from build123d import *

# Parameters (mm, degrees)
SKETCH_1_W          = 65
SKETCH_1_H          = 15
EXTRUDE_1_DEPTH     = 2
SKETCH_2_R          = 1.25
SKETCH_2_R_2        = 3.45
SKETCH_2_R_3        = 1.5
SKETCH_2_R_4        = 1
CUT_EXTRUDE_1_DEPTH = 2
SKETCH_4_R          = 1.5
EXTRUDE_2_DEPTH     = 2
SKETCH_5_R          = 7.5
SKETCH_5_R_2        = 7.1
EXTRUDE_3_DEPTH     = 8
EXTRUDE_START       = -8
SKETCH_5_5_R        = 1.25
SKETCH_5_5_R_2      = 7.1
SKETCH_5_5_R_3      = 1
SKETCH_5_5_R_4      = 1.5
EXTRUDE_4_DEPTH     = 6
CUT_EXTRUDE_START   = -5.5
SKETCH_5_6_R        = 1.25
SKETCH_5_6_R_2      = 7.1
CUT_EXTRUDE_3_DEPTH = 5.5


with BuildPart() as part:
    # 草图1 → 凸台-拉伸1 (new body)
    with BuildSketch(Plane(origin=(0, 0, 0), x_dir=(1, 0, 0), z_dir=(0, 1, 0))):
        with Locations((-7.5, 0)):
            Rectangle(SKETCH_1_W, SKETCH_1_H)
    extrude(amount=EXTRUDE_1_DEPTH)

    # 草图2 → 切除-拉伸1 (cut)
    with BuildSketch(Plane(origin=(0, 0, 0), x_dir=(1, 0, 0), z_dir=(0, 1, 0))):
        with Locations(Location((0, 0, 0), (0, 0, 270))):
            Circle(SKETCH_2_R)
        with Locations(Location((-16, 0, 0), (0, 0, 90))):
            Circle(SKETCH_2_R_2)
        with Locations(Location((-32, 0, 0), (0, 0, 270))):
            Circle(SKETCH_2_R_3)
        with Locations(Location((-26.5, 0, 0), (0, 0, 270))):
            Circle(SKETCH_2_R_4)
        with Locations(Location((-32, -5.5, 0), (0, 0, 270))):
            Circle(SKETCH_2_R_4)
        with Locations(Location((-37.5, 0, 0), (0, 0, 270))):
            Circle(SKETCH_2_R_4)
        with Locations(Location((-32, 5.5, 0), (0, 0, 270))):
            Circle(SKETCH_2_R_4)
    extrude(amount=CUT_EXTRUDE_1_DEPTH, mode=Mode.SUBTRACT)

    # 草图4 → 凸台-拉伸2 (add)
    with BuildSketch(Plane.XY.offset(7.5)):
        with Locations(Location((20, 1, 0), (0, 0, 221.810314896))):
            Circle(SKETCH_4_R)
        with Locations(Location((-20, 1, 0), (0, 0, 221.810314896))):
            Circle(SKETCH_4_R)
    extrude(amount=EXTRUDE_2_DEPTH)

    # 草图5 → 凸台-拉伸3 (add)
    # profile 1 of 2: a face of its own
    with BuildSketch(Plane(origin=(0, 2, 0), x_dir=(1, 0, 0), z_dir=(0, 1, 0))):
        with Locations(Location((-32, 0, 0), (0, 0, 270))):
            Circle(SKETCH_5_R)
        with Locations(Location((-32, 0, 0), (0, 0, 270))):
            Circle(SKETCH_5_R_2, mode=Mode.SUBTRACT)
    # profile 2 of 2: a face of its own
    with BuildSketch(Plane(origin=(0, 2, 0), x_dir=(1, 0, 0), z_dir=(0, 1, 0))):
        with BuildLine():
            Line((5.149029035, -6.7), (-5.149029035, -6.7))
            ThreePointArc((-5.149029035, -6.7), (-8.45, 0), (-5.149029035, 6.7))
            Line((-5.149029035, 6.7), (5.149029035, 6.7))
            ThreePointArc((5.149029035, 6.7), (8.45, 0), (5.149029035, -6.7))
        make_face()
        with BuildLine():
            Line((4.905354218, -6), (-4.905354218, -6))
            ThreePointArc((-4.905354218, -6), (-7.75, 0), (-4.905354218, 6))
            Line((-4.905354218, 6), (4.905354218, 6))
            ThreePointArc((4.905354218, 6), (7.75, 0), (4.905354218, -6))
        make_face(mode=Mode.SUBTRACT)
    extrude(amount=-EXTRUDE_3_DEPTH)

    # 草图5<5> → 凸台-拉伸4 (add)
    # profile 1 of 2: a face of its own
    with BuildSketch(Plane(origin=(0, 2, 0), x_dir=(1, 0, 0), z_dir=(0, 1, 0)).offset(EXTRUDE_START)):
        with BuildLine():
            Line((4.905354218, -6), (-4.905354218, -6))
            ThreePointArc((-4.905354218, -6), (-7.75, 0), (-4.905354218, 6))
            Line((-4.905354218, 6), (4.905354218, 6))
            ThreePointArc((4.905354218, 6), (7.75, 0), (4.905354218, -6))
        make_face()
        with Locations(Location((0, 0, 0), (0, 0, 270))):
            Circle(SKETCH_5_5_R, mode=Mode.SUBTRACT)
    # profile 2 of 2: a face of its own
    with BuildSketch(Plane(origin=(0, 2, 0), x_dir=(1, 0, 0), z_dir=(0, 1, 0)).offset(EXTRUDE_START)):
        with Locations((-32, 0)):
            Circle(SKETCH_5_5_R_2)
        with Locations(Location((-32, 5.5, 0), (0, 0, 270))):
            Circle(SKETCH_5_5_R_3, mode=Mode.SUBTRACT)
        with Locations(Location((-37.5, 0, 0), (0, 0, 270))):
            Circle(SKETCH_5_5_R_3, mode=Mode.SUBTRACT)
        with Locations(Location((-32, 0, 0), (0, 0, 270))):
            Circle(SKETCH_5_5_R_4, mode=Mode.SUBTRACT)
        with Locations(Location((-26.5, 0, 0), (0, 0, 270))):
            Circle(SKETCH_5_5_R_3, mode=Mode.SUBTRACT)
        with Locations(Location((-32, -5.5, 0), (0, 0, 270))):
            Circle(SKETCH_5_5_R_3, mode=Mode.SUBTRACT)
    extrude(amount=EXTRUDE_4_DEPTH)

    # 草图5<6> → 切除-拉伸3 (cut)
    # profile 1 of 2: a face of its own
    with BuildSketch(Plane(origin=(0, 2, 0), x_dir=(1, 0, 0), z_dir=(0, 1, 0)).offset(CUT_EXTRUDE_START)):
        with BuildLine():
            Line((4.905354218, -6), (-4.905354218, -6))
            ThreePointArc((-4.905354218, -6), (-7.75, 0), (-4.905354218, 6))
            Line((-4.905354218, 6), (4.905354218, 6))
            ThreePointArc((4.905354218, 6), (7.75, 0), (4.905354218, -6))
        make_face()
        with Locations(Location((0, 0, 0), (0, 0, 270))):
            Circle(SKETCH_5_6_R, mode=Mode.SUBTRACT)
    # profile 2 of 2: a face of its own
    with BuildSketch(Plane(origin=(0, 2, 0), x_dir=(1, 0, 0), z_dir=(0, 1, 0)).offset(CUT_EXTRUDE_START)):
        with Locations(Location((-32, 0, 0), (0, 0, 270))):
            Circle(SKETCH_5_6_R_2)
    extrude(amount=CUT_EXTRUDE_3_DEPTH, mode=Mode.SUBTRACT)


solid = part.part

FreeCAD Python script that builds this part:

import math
import FreeCAD as App
import Part
import Sketcher
Q = App.Units.Quantity

doc = App.newDocument("Part")
body = doc.addObject("PartDesign::Body", "Body")

# Sketch on XZ plane
sketch1 = body.newObject("Sketcher::SketchObject", "Sketch")
sketch1.AttachmentSupport = (doc.getObject("XZ_Plane"), [""])
sketch1.MapMode = "FlatFace"
sketch1.addGeometry(Part.LineSegment(App.Vector(-40, -7.5, 0), App.Vector(-40, 7.5, 0)), False)
sketch1.addGeometry(Part.LineSegment(App.Vector(-40, 7.5, 0), App.Vector(25, 7.5, 0)), False)
sketch1.addGeometry(Part.LineSegment(App.Vector(25, 7.5, 0), App.Vector(25, -7.5, 0)), False)
sketch1.addGeometry(Part.LineSegment(App.Vector(25, -7.5, 0), App.Vector(-40, -7.5, 0)), False)
sketch1.addConstraint(Sketcher.Constraint("Coincident", 0, 2, 1, 1))
sketch1.addConstraint(Sketcher.Constraint("Coincident", 1, 2, 2, 1))
sketch1.addConstraint(Sketcher.Constraint("Coincident", 2, 2, 3, 1))
sketch1.addConstraint(Sketcher.Constraint("Coincident", 3, 2, 0, 1))
sketch1.addConstraint(Sketcher.Constraint("Vertical", 0))
sketch1.addConstraint(Sketcher.Constraint("Horizontal", 1))
sketch1.addConstraint(Sketcher.Constraint("Vertical", 2))
sketch1.addConstraint(Sketcher.Constraint("Horizontal", 3))
sketch1.addConstraint(Sketcher.Constraint("DistanceX", 1, 1, 1, 2, Q("65 mm")))
sketch1.addConstraint(Sketcher.Constraint("DistanceY", 0, 1, 0, 2, Q("15 mm")))
sketch1.addConstraint(Sketcher.Constraint("DistanceX", 0, 2, -1, 1, Q("40 mm")))
sketch1.addConstraint(Sketcher.Constraint("DistanceY", -1, 1, 0, 2, Q("7.5 mm")))
pad1 = body.newObject("PartDesign::Pad", "Pad")
pad1.Profile = sketch1
pad1.Length = 2
pad1.Reversed = True

# Sketch on XZ plane
sketch2 = body.newObject("Sketcher::SketchObject", "Sketch001")
sketch2.AttachmentSupport = (doc.getObject("XZ_Plane"), [""])
sketch2.MapMode = "FlatFace"
sketch2.addGeometry(Part.Circle(App.Vector(0, 0, 0), App.Vector(0, 0, 1), 1.25), False)
sketch2.addGeometry(Part.Circle(App.Vector(-16, 0, 0), App.Vector(0, 0, 1), 3.45), False)
sketch2.addGeometry(Part.Circle(App.Vector(-32, 0, 0), App.Vector(0, 0, 1), 1.5), False)
sketch2.addGeometry(Part.Circle(App.Vector(-26.5, 0, 0), App.Vector(0, 0, 1), 1), False)
sketch2.addGeometry(Part.Circle(App.Vector(-32, 5.5, 0), App.Vector(0, 0, 1), 1), False)
sketch2.addGeometry(Part.Circle(App.Vector(-37.5, 0, 0), App.Vector(0, 0, 1), 1), False)
sketch2.addGeometry(Part.Circle(App.Vector(-32, -5.5, 0), App.Vector(0, 0, 1), 1), False)
sketch2.addConstraint(Sketcher.Constraint("Coincident", 0, 3, -1, 1))
sketch2.addConstraint(Sketcher.Constraint("Equal", 3, 4))
sketch2.addConstraint(Sketcher.Constraint("Equal", 4, 5))
sketch2.addConstraint(Sketcher.Constraint("Equal", 5, 6))
sketch2.addConstraint(Sketcher.Constraint("Symmetric", 4, 3, 6, 3, -1))
sketch2.addConstraint(Sketcher.Constraint("PointOnObject", 1, 3, -1))
sketch2.addConstraint(Sketcher.Constraint("PointOnObject", 2, 3, -1))
sketch2.addConstraint(Sketcher.Constraint("PointOnObject", 3, 3, -1))
sketch2.addConstraint(Sketcher.Constraint("PointOnObject", 5, 3, -1))
sketch2.addConstraint(Sketcher.Constraint("Vertical", 2, 3, 4, 3))
sketch2.addConstraint(Sketcher.Constraint("Diameter", 2, Q("3 mm")))
sketch2.addConstraint(Sketcher.Constraint("Diameter", 3, Q("2 mm")))
sketch2.addConstraint(Sketcher.Constraint("Diameter", 0, Q("2.5 mm")))
sketch2.addConstraint(Sketcher.Constraint("Diameter", 1, Q("6.9 mm")))
sketch2.addConstraint(Sketcher.Constraint("DistanceX", 1, 3, -1, 1, Q("16 mm")))
sketch2.addConstraint(Sketcher.Constraint("DistanceX", 2, 3, -1, 1, Q("32 mm")))
sketch2.addConstraint(Sketcher.Constraint("DistanceX", 5, 3, 3, 3, Q("11 mm")))
sketch2.addConstraint(Sketcher.Constraint("DistanceY", 6, 3, 4, 3, Q("11 mm")))
sketch2.addConstraint(Sketcher.Constraint("DistanceX", 3, 3, -1, 1, Q("26.5 mm")))
pocket1 = body.newObject("PartDesign::Pocket", "Pocket")
pocket1.Profile = sketch2
pocket1.Length = 2

# Sketch on XY plane
sketch3 = body.newObject("Sketcher::SketchObject", "Sketch002")
sketch3.AttachmentSupport = (doc.getObject("XY_Plane"), [""])
sketch3.MapMode = "FlatFace"
sketch3.AttachmentOffset = App.Placement(App.Vector(0, 0, 7.5), App.Rotation())
sketch3.addGeometry(Part.Circle(App.Vector(20, 1, 0), App.Vector(0, 0, 1), 1.5), False)
sketch3.addGeometry(Part.Circle(App.Vector(-20, 1, 0), App.Vector(0, 0, 1), 1.5), False)
sketch3.addConstraint(Sketcher.Constraint("Equal", 0, 1))
sketch3.addConstraint(Sketcher.Constraint("Symmetric", 0, 3, 1, 3, -2))
sketch3.addConstraint(Sketcher.Constraint("Diameter", 0, Q("3 mm")))
sketch3.addConstraint(Sketcher.Constraint("DistanceX", -1, 1, 0, 3, Q("20 mm")))
sketch3.addConstraint(Sketcher.Constraint("DistanceY", -1, 1, 0, 3, Q("1 mm")))
pad2 = body.newObject("PartDesign::Pad", "Pad001")
pad2.Profile = sketch3
pad2.Length = 2

# Sketch on XZ plane
sketch4 = body.newObject("Sketcher::SketchObject", "Sketch003")
sketch4.AttachmentSupport = (doc.getObject("XZ_Plane"), [""])
sketch4.MapMode = "FlatFace"
sketch4.AttachmentOffset = App.Placement(App.Vector(0, 0, -2), App.Rotation())
sketch4.addGeometry(Part.Circle(App.Vector(-32, 0, 0), App.Vector(0, 0, 1), 7.5), False)
sketch4.addGeometry(Part.Circle(App.Vector(-32, 0, 0), App.Vector(0, 0, 1), 7.1), False)
sketch4.addGeometry(Part.LineSegment(App.Vector(-5.149029, 6.7, 0), App.Vector(5.149029, 6.7, 0)), False)
sketch4.addGeometry(Part.ArcOfCircle(Part.Circle(App.Vector(0, 0, 0), App.Vector(0, 0, 1), 8.45), math.radians(-52.457297), math.radians(52.457297)), False)
sketch4.addGeometry(Part.LineSegment(App.Vector(5.149029, -6.7, 0), App.Vector(-5.149029, -6.7, 0)), False)
sketch4.addGeometry(Part.ArcOfCircle(Part.Circle(App.Vector(0, 0, 0), App.Vector(0, 0, 1), 8.45), math.radians(127.542703), math.radians(232.457297)), False)
sketch4.addGeometry(Part.LineSegment(App.Vector(4.905354, 6, 0), App.Vector(-4.905354, 6, 0)), False)
sketch4.addGeometry(Part.ArcOfCircle(Part.Circle(App.Vector(0, 0, 0), App.Vector(0, 0, 1), 7.75), math.radians(129.268026), math.radians(230.731974)), False)
sketch4.addGeometry(Part.LineSegment(App.Vector(-4.905354, -6, 0), App.Vector(4.905354, -6, 0)), False)
sketch4.addGeometry(Part.ArcOfCircle(Part.Circle(App.Vector(0, 0, 0), App.Vector(0, 0, 1), 7.75), math.radians(-50.731974), math.radians(50.731974)), False)
sketch4.addConstraint(Sketcher.Constraint("Coincident", 2, 2, 3, 2))
sketch4.addConstraint(Sketcher.Constraint("Coincident", 3, 1, 4, 1))
sketch4.addConstraint(Sketcher.Constraint("Coincident", 4, 2, 5, 2))
sketch4.addConstraint(Sketcher.Constraint("Coincident", 5, 1, 2, 1))
sketch4.addConstraint(Sketcher.Constraint("Coincident", 6, 2, 7, 1))
sketch4.addConstraint(Sketcher.Constraint("Coincident", 7, 2, 8, 1))
sketch4.addConstraint(Sketcher.Constraint("Coincident", 8, 2, 9, 1))
sketch4.addConstraint(Sketcher.Constraint("Coincident", 9, 2, 6, 1))
sketch4.addConstraint(Sketcher.Constraint("Horizontal", 2))
sketch4.addConstraint(Sketcher.Constraint("Horizontal", 4))
sketch4.addConstraint(Sketcher.Constraint("Horizontal", 6))
sketch4.addConstraint(Sketcher.Constraint("Horizontal", 8))
sketch4.addConstraint(Sketcher.Constraint("Coincident", 3, 3, -1, 1))
sketch4.addConstraint(Sketcher.Constraint("Coincident", 5, 3, -1, 1))
sketch4.addConstraint(Sketcher.Constraint("Coincident", 7, 3, -1, 1))
sketch4.addConstraint(Sketcher.Constraint("Coincident", 9, 3, -1, 1))
sketch4.addConstraint(Sketcher.Constraint("Coincident", 1, 3, 0, 3))
sketch4.addConstraint(Sketcher.Constraint("Equal", 3, 5))
sketch4.addConstraint(Sketcher.Constraint("Equal", 7, 9))
sketch4.addConstraint(Sketcher.Constraint("PointOnObject", 0, 3, -1))
sketch4.addConstraint(Sketcher.Constraint("Vertical", 2, 2, 3, 1))
sketch4.addConstraint(Sketcher.Constraint("Vertical", 6, 2, 7, 2))
sketch4.addConstraint(Sketcher.Constraint("Diameter", 0, Q("15 mm")))
sketch4.addConstraint(Sketcher.Constraint("Diameter", 1, Q("14.2 mm")))
sketch4.addConstraint(Sketcher.Constraint("Radius", 3, Q("8.45 mm")))
sketch4.addConstraint(Sketcher.Constraint("Radius", 7, Q("7.75 mm")))
sketch4.addConstraint(Sketcher.Constraint("DistanceX", 0, 3, -1, 1, Q("32 mm")))
sketch4.addConstraint(Sketcher.Constraint("DistanceY", -1, 1, 6, 2, Q("6 mm")))
sketch4.addConstraint(Sketcher.Constraint("DistanceY", -1, 1, 2, 2, Q("6.7 mm")))
pad3 = body.newObject("PartDesign::Pad", "Pad002")
pad3.Profile = sketch4
pad3.Length = 8

# Sketch on XZ plane
sketch5 = body.newObject("Sketcher::SketchObject", "Sketch004")
sketch5.AttachmentSupport = (doc.getObject("XZ_Plane"), [""])
sketch5.MapMode = "FlatFace"
sketch5.AttachmentOffset = App.Placement(App.Vector(0, 0, 6), App.Rotation())
sketch5.addGeometry(Part.LineSegment(App.Vector(-4.905354, 6, 0), App.Vector(4.905354, 6, 0)), False)
sketch5.addGeometry(Part.ArcOfCircle(Part.Circle(App.Vector(0, 0, 0), App.Vector(0, 0, 1), 7.75), math.radians(-50.731974), math.radians(50.731974)), False)
sketch5.addGeometry(Part.LineSegment(App.Vector(4.905354, -6, 0), App.Vector(-4.905354, -6, 0)), False)
sketch5.addGeometry(Part.ArcOfCircle(Part.Circle(App.Vector(0, 0, 0), App.Vector(0, 0, 1), 7.75), math.radians(129.268026), math.radians(230.731974)), False)
sketch5.addGeometry(Part.Circle(App.Vector(0, 0, 0), App.Vector(0, 0, 1), 1.25), False)
sketch5.addGeometry(Part.Circle(App.Vector(-32, 0, 0), App.Vector(0, 0, 1), 7.1), False)
sketch5.addGeometry(Part.Circle(App.Vector(-32, 5.5, 0), App.Vector(0, 0, 1), 1), False)
sketch5.addGeometry(Part.Circle(App.Vector(-37.5, 0, 0), App.Vector(0, 0, 1), 1), False)
sketch5.addGeometry(Part.Circle(App.Vector(-32, 0, 0), App.Vector(0, 0, 1), 1.5), False)
sketch5.addGeometry(Part.Circle(App.Vector(-26.5, 0, 0), App.Vector(0, 0, 1), 1), False)
sketch5.addGeometry(Part.Circle(App.Vector(-32, -5.5, 0), App.Vector(0, 0, 1), 1), False)
sketch5.addConstraint(Sketcher.Constraint("Coincident", 0, 2, 1, 2))
sketch5.addConstraint(Sketcher.Constraint("Coincident", 1, 1, 2, 1))
sketch5.addConstraint(Sketcher.Constraint("Coincident", 2, 2, 3, 2))
sketch5.addConstraint(Sketcher.Constraint("Coincident", 3, 1, 0, 1))
sketch5.addConstraint(Sketcher.Constraint("Horizontal", 0))
sketch5.addConstraint(Sketcher.Constraint("Horizontal", 2))
sketch5.addConstraint(Sketcher.Constraint("Coincident", 1, 3, -1, 1))
sketch5.addConstraint(Sketcher.Constraint("Coincident", 3, 3, -1, 1))
sketch5.addConstraint(Sketcher.Constraint("Coincident", 4, 3, -1, 1))
sketch5.addConstraint(Sketcher.Constraint("Coincident", 8, 3, 5, 3))
sketch5.addConstraint(Sketcher.Constraint("Equal", 1, 3))
sketch5.addConstraint(Sketcher.Constraint("Equal", 6, 7))
sketch5.addConstraint(Sketcher.Constraint("Equal", 7, 9))
sketch5.addConstraint(Sketcher.Constraint("Equal", 9, 10))
sketch5.addConstraint(Sketcher.Constraint("Symmetric", 6, 3, 10, 3, -1))
sketch5.addConstraint(Sketcher.Constraint("PointOnObject", 5, 3, -1))
sketch5.addConstraint(Sketcher.Constraint("PointOnObject", 7, 3, -1))
sketch5.addConstraint(Sketcher.Constraint("PointOnObject", 9, 3, -1))
sketch5.addConstraint(Sketcher.Constraint("Vertical", 5, 3, 6, 3))
sketch5.addConstraint(Sketcher.Constraint("Vertical", 0, 2, 1, 1))
sketch5.addConstraint(Sketcher.Constraint("Diameter", 6, Q("2 mm")))
sketch5.addConstraint(Sketcher.Constraint("Diameter", 8, Q("3 mm")))
sketch5.addConstraint(Sketcher.Constraint("Diameter", 4, Q("2.5 mm")))
sketch5.addConstraint(Sketcher.Constraint("Diameter", 5, Q("14.2 mm")))
sketch5.addConstraint(Sketcher.Constraint("Radius", 1, Q("7.75 mm")))
sketch5.addConstraint(Sketcher.Constraint("DistanceX", 5, 3, -1, 1, Q("32 mm")))
sketch5.addConstraint(Sketcher.Constraint("DistanceY", -1, 1, 0, 2, Q("6 mm")))
sketch5.addConstraint(Sketcher.Constraint("DistanceX", 7, 3, 9, 3, Q("11 mm")))
sketch5.addConstraint(Sketcher.Constraint("DistanceY", 10, 3, 6, 3, Q("11 mm")))
sketch5.addConstraint(Sketcher.Constraint("DistanceX", 7, 3, -1, 1, Q("37.5 mm")))
pad4 = body.newObject("PartDesign::Pad", "Pad003")
pad4.Profile = sketch5
pad4.Length = 6
pad4.Reversed = True

# Sketch on XZ plane
sketch6 = body.newObject("Sketcher::SketchObject", "Sketch005")
sketch6.AttachmentSupport = (doc.getObject("XZ_Plane"), [""])
sketch6.MapMode = "FlatFace"
sketch6.AttachmentOffset = App.Placement(App.Vector(0, 0, 3.5), App.Rotation())
sketch6.addGeometry(Part.LineSegment(App.Vector(-4.905354, 6, 0), App.Vector(4.905354, 6, 0)), False)
sketch6.addGeometry(Part.ArcOfCircle(Part.Circle(App.Vector(0, 0, 0), App.Vector(0, 0, 1), 7.75), math.radians(-50.731974), math.radians(50.731974)), False)
sketch6.addGeometry(Part.LineSegment(App.Vector(4.905354, -6, 0), App.Vector(-4.905354, -6, 0)), False)
sketch6.addGeometry(Part.ArcOfCircle(Part.Circle(App.Vector(0, 0, 0), App.Vector(0, 0, 1), 7.75), math.radians(129.268026), math.radians(230.731974)), False)
sketch6.addGeometry(Part.Circle(App.Vector(0, 0, 0), App.Vector(0, 0, 1), 1.25), False)
sketch6.addGeometry(Part.Circle(App.Vector(-32, 0, 0), App.Vector(0, 0, 1), 7.1), False)
sketch6.addConstraint(Sketcher.Constraint("Coincident", 0, 2, 1, 2))
sketch6.addConstraint(Sketcher.Constraint("Coincident", 1, 1, 2, 1))
sketch6.addConstraint(Sketcher.Constraint("Coincident", 2, 2, 3, 2))
sketch6.addConstraint(Sketcher.Constraint("Coincident", 3, 1, 0, 1))
sketch6.addConstraint(Sketcher.Constraint("Horizontal", 0))
sketch6.addConstraint(Sketcher.Constraint("Horizontal", 2))
sketch6.addConstraint(Sketcher.Constraint("Coincident", 1, 3, -1, 1))
sketch6.addConstraint(Sketcher.Constraint("Coincident", 3, 3, -1, 1))
sketch6.addConstraint(Sketcher.Constraint("Coincident", 4, 3, -1, 1))
sketch6.addConstraint(Sketcher.Constraint("Equal", 1, 3))
sketch6.addConstraint(Sketcher.Constraint("PointOnObject", 5, 3, -1))
sketch6.addConstraint(Sketcher.Constraint("Vertical", 0, 2, 1, 1))
sketch6.addConstraint(Sketcher.Constraint("Diameter", 4, Q("2.5 mm")))
sketch6.addConstraint(Sketcher.Constraint("Diameter", 5, Q("14.2 mm")))
sketch6.addConstraint(Sketcher.Constraint("Radius", 1, Q("7.75 mm")))
sketch6.addConstraint(Sketcher.Constraint("DistanceX", 5, 3, -1, 1, Q("32 mm")))
sketch6.addConstraint(Sketcher.Constraint("DistanceY", -1, 1, 0, 2, Q("6 mm")))
pocket2 = body.newObject("PartDesign::Pocket", "Pocket001")
pocket2.Profile = sketch6
pocket2.Length = 5.5

doc.recompute()
